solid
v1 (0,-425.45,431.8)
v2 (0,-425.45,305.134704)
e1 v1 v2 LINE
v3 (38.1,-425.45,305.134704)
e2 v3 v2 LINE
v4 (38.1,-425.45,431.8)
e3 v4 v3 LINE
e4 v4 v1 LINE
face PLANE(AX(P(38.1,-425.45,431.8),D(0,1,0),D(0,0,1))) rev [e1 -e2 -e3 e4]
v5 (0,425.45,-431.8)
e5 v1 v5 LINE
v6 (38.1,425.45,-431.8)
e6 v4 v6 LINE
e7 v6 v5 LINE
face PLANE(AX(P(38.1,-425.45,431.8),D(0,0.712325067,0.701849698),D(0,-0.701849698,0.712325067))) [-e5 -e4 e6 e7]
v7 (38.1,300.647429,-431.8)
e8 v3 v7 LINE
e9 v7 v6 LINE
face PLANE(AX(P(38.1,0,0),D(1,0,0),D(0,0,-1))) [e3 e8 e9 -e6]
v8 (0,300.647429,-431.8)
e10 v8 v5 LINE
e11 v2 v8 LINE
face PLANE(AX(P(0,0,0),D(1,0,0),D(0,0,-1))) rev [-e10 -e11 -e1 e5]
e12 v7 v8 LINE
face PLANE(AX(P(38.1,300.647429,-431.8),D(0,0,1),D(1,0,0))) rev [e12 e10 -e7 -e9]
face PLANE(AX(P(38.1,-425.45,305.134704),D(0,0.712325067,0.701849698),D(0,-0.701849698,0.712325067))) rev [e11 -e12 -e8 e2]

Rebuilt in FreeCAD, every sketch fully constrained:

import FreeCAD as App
import Part
import Sketcher
from FreeCAD import Vector
Q = App.Units.Quantity


def add_polygon(sketch, points):
    """Adds a closed chain of lines whose ends are joined by coincident constraints."""
    first, n = sketch.GeometryCount, len(points)
    for a, b in zip(points, points[1:] + points[:1]):
        sketch.addGeometry(Part.LineSegment(App.Vector(*a, 0), App.Vector(*b, 0)), False)
    for i in range(n):
        sketch.addConstraint(Sketcher.Constraint("Coincident", first + i, 2, first + (i + 1) % n, 1))

doc = App.newDocument("Part")
body = doc.addObject("PartDesign::Body", "Body")

# Sketch on YZ plane
sketch1 = body.newObject("Sketcher::SketchObject", "Sketch")
sketch1.AttachmentSupport = (doc.getObject("YZ_Plane"), [""])
sketch1.MapMode = "FlatFace"
add_polygon(sketch1, [(-425.45, 431.8), (-425.45, 305.134704), (300.647429, -431.8), (425.45, -431.8)])  # lines 0-3
sketch1.addConstraint([
    Sketcher.Constraint("Vertical", 0),
    Sketcher.Constraint("Horizontal", 2),
    Sketcher.Constraint("Symmetric", 2, 2, 3, 2, -1, 1),
    Sketcher.Constraint("Parallel", 1, 3),
    Sketcher.Constraint("DistanceY", 1, 2, -1, 1, Q("17 in")),
    Sketcher.Constraint("DistanceX", 0, 2, 2, 2, Q("33.5 in")),
    Sketcher.Constraint("DistanceX", 2, 1, 2, 2, Q("124.802571 mm")),
])
pad1 = body.newObject("PartDesign::Pad", "Pad")
pad1.Profile = sketch1
pad1.Length = Q("1.5 in")

doc.recompute()
